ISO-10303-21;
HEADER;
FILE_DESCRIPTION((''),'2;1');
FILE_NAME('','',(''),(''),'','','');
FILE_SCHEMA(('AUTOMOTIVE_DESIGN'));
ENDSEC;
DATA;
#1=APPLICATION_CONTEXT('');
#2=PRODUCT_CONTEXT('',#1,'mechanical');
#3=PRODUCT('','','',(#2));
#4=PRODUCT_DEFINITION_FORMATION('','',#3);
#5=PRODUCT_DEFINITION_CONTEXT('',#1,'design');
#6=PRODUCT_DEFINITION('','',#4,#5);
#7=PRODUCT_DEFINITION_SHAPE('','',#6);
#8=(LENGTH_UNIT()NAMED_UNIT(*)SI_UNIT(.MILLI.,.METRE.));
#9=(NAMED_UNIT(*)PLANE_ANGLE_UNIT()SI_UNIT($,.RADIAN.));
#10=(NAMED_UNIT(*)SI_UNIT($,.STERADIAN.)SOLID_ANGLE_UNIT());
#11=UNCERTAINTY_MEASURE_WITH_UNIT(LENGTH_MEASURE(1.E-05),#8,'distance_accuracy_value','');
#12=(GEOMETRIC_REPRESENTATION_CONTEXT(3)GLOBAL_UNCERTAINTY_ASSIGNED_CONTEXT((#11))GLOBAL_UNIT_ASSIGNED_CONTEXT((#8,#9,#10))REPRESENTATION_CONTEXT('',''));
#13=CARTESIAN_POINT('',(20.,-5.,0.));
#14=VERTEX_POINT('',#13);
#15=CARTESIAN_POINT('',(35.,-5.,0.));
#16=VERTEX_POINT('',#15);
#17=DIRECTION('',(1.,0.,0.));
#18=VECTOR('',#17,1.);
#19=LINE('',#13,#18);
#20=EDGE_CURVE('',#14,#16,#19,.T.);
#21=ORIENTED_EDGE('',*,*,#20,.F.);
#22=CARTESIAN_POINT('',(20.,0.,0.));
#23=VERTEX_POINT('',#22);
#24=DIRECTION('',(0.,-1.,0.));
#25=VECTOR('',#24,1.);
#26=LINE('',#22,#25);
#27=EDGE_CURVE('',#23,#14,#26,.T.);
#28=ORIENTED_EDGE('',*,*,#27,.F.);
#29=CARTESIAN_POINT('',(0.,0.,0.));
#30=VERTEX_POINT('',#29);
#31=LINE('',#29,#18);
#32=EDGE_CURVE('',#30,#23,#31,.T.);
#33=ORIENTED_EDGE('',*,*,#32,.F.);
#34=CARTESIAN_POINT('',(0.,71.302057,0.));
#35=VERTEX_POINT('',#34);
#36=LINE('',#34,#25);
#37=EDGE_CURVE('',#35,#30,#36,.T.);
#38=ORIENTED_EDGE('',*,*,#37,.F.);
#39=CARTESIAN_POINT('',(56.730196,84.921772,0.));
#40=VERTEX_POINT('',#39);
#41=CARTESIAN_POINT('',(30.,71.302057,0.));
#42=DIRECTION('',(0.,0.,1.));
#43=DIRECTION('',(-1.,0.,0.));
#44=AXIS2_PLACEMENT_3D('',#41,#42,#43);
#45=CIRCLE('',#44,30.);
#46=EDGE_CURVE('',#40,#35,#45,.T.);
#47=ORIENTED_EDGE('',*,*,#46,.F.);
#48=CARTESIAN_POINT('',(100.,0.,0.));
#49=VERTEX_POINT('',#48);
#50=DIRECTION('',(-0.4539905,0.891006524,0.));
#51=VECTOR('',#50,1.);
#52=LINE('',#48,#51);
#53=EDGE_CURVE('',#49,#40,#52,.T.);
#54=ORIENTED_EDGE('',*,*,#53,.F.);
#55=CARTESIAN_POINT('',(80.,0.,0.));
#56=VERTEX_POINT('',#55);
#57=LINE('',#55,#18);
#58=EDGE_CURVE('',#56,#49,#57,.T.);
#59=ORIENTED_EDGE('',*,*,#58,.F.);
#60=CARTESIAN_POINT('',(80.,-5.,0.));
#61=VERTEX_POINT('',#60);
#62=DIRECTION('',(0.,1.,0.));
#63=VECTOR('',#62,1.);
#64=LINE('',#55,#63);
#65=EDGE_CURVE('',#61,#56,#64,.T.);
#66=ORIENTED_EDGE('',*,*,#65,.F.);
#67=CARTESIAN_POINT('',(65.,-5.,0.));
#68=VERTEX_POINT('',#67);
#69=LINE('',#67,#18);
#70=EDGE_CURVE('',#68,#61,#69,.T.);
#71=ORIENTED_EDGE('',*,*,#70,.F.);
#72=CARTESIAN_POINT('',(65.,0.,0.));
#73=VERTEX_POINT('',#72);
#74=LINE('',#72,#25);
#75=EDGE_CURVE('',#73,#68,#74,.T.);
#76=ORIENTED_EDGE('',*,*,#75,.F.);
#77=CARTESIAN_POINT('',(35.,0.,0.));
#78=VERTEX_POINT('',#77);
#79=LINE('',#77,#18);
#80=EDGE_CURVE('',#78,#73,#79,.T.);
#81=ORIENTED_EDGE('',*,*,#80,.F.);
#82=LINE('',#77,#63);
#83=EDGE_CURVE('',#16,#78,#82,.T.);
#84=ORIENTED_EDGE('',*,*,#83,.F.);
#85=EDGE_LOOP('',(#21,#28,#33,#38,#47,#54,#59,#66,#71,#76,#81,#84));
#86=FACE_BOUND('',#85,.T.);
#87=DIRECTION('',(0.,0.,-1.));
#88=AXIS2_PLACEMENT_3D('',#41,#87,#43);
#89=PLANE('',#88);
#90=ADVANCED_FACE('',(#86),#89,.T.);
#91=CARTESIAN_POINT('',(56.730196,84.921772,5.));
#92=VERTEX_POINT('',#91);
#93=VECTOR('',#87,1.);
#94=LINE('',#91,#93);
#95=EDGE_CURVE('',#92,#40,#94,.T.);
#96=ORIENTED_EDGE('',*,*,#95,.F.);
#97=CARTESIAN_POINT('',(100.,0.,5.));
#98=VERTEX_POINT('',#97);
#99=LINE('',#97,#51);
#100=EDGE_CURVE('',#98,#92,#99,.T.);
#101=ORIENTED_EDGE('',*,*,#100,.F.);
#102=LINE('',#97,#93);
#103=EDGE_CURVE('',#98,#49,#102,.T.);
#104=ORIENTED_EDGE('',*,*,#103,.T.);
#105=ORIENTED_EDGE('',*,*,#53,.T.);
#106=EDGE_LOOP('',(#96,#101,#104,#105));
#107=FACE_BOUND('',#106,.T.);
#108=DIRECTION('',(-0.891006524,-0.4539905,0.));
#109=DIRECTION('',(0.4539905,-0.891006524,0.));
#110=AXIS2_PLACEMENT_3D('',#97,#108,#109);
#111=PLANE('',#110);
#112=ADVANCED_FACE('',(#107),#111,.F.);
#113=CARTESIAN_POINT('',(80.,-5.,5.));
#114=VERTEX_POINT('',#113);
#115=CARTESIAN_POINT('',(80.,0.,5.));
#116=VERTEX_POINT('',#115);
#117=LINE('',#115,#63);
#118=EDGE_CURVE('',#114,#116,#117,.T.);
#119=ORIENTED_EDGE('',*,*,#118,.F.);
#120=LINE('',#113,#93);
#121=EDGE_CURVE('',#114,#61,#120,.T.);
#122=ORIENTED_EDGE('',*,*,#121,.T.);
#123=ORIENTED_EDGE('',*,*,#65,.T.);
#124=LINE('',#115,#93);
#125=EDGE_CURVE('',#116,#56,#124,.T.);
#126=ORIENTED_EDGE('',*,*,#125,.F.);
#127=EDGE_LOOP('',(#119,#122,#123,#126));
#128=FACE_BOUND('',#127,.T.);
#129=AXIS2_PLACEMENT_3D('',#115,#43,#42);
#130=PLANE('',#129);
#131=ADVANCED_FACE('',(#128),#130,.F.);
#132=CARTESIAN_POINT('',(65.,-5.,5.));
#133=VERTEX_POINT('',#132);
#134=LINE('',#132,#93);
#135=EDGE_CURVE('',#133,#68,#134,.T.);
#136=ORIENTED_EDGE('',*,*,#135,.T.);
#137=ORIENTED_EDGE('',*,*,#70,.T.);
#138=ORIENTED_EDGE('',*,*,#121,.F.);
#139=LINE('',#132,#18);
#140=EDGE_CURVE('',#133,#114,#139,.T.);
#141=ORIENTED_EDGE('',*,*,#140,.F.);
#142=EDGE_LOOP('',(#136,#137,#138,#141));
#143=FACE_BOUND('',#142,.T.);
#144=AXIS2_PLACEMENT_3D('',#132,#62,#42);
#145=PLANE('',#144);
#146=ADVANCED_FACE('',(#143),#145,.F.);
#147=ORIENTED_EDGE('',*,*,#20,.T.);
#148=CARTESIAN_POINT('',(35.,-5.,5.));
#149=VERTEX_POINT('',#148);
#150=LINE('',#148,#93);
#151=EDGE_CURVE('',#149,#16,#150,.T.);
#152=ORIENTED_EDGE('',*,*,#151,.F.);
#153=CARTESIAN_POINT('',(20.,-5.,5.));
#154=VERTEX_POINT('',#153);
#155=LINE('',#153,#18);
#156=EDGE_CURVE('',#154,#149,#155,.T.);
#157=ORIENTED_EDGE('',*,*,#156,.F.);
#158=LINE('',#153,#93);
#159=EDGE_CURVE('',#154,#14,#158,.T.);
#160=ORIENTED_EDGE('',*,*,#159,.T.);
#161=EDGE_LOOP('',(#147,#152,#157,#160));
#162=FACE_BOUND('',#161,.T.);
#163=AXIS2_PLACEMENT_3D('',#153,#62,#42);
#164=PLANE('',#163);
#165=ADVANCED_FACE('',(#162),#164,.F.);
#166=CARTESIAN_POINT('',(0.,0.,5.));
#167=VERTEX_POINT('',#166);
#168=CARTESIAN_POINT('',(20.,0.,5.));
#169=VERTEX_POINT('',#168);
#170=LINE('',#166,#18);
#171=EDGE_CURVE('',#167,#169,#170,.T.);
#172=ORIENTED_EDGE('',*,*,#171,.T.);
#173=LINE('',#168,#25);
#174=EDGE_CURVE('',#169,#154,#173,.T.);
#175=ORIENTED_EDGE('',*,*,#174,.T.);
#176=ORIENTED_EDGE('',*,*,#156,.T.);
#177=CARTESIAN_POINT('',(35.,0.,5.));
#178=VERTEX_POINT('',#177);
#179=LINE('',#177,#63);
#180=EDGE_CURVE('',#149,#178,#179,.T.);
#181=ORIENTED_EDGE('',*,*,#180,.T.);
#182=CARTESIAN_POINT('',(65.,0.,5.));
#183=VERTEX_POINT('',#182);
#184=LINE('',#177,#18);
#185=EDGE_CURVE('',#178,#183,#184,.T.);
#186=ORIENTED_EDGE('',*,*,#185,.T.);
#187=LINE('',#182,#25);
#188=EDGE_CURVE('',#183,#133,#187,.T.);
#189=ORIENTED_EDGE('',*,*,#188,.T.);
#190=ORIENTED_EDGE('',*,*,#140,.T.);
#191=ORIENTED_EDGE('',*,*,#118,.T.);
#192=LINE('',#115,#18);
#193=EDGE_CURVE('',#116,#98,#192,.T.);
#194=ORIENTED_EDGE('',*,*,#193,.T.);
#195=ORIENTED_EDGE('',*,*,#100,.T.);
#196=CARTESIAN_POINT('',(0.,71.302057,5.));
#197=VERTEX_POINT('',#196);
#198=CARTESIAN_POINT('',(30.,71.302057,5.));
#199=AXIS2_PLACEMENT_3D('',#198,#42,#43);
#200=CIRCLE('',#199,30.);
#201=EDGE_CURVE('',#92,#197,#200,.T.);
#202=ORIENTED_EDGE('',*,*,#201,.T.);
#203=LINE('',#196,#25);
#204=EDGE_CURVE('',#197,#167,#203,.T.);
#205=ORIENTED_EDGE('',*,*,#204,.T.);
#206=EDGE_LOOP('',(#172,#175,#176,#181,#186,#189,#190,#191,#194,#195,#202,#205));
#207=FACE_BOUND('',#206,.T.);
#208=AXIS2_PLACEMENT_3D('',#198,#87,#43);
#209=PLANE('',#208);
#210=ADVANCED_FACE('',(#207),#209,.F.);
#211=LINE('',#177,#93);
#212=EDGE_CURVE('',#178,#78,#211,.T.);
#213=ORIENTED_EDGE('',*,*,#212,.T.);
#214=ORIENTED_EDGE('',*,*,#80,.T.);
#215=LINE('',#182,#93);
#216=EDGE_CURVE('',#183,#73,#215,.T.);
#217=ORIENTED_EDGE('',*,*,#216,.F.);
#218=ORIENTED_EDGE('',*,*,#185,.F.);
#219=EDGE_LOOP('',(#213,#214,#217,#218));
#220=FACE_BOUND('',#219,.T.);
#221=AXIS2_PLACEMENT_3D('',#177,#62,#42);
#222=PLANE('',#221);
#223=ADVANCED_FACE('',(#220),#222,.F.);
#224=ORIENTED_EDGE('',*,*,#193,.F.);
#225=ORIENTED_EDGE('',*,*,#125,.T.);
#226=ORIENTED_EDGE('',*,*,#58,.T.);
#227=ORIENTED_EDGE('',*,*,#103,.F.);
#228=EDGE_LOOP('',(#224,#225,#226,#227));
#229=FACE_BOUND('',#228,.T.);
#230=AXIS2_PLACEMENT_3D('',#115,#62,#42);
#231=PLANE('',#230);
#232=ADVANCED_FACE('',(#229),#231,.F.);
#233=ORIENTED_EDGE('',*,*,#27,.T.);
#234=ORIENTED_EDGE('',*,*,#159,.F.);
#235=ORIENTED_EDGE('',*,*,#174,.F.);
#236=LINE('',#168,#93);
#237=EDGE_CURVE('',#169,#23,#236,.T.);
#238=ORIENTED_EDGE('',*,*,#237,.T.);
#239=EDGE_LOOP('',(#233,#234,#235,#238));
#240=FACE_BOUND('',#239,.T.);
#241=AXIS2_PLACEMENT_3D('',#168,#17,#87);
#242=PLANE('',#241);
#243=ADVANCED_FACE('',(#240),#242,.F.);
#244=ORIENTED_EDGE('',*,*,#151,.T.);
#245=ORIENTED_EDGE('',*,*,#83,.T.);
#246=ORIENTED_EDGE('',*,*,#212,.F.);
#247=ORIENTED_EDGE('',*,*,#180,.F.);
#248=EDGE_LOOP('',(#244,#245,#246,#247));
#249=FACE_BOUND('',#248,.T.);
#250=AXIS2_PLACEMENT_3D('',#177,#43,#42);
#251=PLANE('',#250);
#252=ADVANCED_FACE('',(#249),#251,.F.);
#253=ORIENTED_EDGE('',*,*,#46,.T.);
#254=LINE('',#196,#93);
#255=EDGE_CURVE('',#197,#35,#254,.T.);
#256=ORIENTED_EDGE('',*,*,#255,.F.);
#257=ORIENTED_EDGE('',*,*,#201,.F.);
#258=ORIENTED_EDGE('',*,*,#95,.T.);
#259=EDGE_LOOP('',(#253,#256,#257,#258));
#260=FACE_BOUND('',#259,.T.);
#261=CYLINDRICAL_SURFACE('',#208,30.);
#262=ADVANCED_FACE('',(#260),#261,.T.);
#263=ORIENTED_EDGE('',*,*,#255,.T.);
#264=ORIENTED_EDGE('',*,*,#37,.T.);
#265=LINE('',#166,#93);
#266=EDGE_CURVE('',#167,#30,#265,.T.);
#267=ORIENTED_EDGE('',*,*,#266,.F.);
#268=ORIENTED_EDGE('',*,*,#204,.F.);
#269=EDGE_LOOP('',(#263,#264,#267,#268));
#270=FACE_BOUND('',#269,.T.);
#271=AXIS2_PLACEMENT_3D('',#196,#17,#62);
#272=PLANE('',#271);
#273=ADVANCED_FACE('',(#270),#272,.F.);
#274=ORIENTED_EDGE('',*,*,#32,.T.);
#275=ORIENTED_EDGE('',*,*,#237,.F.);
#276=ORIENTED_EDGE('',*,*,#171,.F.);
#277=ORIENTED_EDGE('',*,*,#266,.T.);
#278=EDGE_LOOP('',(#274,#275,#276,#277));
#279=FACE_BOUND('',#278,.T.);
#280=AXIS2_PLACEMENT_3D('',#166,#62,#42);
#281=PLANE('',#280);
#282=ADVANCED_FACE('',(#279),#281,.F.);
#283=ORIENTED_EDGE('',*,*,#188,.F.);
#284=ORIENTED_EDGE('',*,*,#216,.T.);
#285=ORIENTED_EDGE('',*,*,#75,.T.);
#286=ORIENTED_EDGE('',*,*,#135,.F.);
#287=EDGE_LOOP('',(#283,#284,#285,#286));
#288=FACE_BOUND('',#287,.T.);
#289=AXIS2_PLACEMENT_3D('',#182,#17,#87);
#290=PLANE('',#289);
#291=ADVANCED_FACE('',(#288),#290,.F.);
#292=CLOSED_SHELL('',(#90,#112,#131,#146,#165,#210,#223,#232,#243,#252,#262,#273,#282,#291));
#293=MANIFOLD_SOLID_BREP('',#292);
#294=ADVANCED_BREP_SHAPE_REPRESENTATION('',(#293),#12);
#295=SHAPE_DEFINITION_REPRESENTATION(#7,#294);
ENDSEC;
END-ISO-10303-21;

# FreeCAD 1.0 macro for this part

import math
import FreeCAD as App
import Part
import Sketcher

V = App.Vector
Q = App.Units.Quantity

doc = App.newDocument("Part")
params = doc.addObject("Spreadsheet::Sheet", "Params")
for row, (alias, value) in enumerate([
    ("sketch1_radius", "30 mm"),
    ("sketch1_width", "20 mm"),
    ("sketch1_width2", "15 mm"),
    ("sketch1_width3", "30 mm"),
    ("sketch1_height", "5 mm"),
    ("pad1_length", "5 mm"),
], start=1):
    params.set(f"A{row}", alias)
    params.set(f"B{row}", "=" + value)
    params.setAlias(f"B{row}", alias)

body = doc.addObject("PartDesign::Body", "Body")

sketch1 = doc.addObject("Sketcher::SketchObject", "Sketch")
body.addObject(sketch1)
sketch1.AttachmentSupport = (doc.XY_Plane, [""])
sketch1.MapMode = "FlatFace"
sketch1.addGeometry(Part.LineSegment(V(0, 71, 0), V(0, 0, 0)), False)
sketch1.addGeometry(Part.LineSegment(V(0, 0, 0), V(20, 0, 0)), False)
sketch1.addGeometry(Part.LineSegment(V(20, 0, 0), V(20, -5, 0)), False)
sketch1.addGeometry(Part.LineSegment(V(20, -5, 0), V(35, -5, 0)), False)
sketch1.addGeometry(Part.LineSegment(V(35, -5, 0), V(35, 0, 0)), False)
sketch1.addGeometry(Part.LineSegment(V(35, 0, 0), V(65, 0, 0)), False)
sketch1.addGeometry(Part.LineSegment(V(65, 0, 0), V(65, -5, 0)), False)
sketch1.addGeometry(Part.LineSegment(V(65, -5, 0), V(80, -5, 0)), False)
sketch1.addGeometry(Part.LineSegment(V(80, -5, 0), V(80, 0, 0)), False)
sketch1.addGeometry(Part.LineSegment(V(80, 0, 0), V(100, 0, 0)), False)
sketch1.addGeometry(Part.LineSegment(V(100, 0, 0), V(57, 85, 0)), False)
sketch1.addGeometry(Part.ArcOfCircle(Part.Circle(V(30, 71, 0), V(0, 0, 1), 30), math.radians(27), math.radians(180)), False)
sketch1.addConstraint(Sketcher.Constraint("Coincident", 0, 2, 1, 1))
sketch1.addConstraint(Sketcher.Constraint("Coincident", 1, 2, 2, 1))
sketch1.addConstraint(Sketcher.Constraint("Coincident", 2, 2, 3, 1))
sketch1.addConstraint(Sketcher.Constraint("Coincident", 3, 2, 4, 1))
sketch1.addConstraint(Sketcher.Constraint("Coincident", 4, 2, 5, 1))
sketch1.addConstraint(Sketcher.Constraint("Coincident", 5, 2, 6, 1))
sketch1.addConstraint(Sketcher.Constraint("Coincident", 6, 2, 7, 1))
sketch1.addConstraint(Sketcher.Constraint("Coincident", 7, 2, 8, 1))
sketch1.addConstraint(Sketcher.Constraint("Coincident", 8, 2, 9, 1))
sketch1.addConstraint(Sketcher.Constraint("Coincident", 9, 2, 10, 1))
sketch1.addConstraint(Sketcher.Constraint("Tangent", 10, 2, 11, 1))
sketch1.addConstraint(Sketcher.Constraint("Tangent", 11, 2, 0, 1))
sketch1.addConstraint(Sketcher.Constraint("Vertical", 0))
sketch1.addConstraint(Sketcher.Constraint("Horizontal", 1))
sketch1.addConstraint(Sketcher.Constraint("Vertical", 2))
sketch1.addConstraint(Sketcher.Constraint("Horizontal", 3))
sketch1.addConstraint(Sketcher.Constraint("Vertical", 4))
sketch1.addConstraint(Sketcher.Constraint("Horizontal", 5))
sketch1.addConstraint(Sketcher.Constraint("Vertical", 6))
sketch1.addConstraint(Sketcher.Constraint("Horizontal", 7))
sketch1.addConstraint(Sketcher.Constraint("Vertical", 8))
sketch1.addConstraint(Sketcher.Constraint("Horizontal", 9))
sketch1.addConstraint(Sketcher.Constraint("Coincident", 0, 2, -1, 1))
sketch1.addConstraint(Sketcher.Constraint("PointOnObject", 4, 2, -1))
sketch1.addConstraint(Sketcher.Constraint("PointOnObject", 8, 2, -1))
sketch1.addConstraint(Sketcher.Constraint("Horizontal", 3, 2, 6, 2))
sketch1.addConstraint(Sketcher.Constraint("Equal", 3, 7))
sketch1.addConstraint(Sketcher.Constraint("Equal", 1, 9))
sketch1.addConstraint(Sketcher.Constraint("Radius", 11, 30.0))
sketch1.addConstraint(Sketcher.Constraint("DistanceX", 1, 1, 1, 2, 20.0))
sketch1.addConstraint(Sketcher.Constraint("DistanceX", 3, 1, 3, 2, 15.0))
sketch1.addConstraint(Sketcher.Constraint("DistanceX", 5, 1, 5, 2, 30.0))
sketch1.addConstraint(Sketcher.Constraint("DistanceY", 2, 2, 2, 1, 5.0))
sketch1.addConstraint(Sketcher.Constraint("Angle", 10, Q("117 deg")))
sketch1.setExpression("Constraints[28]", "Params.sketch1_radius")
sketch1.setExpression("Constraints[29]", "Params.sketch1_width")
sketch1.setExpression("Constraints[30]", "Params.sketch1_width2")
sketch1.setExpression("Constraints[31]", "Params.sketch1_width3")
sketch1.setExpression("Constraints[32]", "Params.sketch1_height")
pad1 = doc.addObject("PartDesign::Pad", "Pad")
body.addObject(pad1)
pad1.Profile = sketch1
pad1.setExpression("Length", "Params.pad1_length")

doc.recompute()
